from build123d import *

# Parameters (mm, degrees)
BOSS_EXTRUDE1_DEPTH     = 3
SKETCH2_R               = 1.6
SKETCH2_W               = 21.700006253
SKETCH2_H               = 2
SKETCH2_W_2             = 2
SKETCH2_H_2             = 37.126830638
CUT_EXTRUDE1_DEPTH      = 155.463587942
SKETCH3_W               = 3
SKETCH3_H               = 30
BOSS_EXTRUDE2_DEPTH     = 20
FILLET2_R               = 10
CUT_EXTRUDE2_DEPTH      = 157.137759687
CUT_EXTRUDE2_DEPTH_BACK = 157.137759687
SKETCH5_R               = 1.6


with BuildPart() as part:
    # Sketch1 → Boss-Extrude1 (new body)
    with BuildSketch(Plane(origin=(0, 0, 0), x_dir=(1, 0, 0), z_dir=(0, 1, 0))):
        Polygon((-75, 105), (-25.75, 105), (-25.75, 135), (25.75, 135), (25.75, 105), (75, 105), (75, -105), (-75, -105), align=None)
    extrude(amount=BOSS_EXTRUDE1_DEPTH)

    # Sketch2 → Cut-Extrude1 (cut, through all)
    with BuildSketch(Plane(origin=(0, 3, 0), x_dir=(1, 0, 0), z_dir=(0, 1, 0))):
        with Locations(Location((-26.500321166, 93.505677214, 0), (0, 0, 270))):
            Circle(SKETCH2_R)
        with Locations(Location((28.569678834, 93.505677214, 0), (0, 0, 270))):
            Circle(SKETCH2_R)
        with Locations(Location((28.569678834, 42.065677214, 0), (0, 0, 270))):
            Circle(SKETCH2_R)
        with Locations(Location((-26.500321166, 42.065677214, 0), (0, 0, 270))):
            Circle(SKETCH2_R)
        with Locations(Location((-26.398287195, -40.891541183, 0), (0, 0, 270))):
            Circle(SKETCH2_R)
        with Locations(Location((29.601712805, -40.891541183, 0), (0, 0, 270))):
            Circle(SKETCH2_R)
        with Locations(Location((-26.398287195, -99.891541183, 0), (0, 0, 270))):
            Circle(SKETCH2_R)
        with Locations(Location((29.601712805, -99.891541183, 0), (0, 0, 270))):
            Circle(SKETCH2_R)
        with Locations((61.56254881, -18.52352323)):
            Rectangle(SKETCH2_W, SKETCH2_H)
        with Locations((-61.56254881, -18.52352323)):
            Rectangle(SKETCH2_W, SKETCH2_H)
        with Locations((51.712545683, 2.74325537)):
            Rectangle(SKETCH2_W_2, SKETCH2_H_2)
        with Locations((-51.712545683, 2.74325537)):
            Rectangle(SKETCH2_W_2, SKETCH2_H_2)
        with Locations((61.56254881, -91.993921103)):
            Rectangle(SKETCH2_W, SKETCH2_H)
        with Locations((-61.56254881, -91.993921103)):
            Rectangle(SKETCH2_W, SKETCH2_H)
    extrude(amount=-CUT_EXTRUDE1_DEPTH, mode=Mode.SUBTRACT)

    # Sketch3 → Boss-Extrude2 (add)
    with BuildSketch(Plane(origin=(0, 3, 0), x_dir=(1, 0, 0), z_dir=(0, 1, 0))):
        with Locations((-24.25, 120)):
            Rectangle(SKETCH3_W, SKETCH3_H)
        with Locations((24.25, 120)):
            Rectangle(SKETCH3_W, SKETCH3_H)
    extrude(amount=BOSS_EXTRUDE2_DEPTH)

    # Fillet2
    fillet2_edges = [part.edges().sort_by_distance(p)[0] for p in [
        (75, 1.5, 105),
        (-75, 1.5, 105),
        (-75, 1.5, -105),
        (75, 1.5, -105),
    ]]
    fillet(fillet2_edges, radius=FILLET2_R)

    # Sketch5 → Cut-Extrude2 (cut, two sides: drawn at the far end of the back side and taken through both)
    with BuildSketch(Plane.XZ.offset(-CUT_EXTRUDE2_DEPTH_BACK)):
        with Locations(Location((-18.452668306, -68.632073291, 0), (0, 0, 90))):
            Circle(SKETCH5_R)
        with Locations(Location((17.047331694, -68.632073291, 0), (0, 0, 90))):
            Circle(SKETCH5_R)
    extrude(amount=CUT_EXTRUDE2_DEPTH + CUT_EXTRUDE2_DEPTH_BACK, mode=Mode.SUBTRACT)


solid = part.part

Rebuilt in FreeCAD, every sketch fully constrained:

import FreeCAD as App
import Part
import Sketcher


def edges_at(feature, points):
    """Names of the edges that pass closest to the given points."""
    edges = feature.Shape.Edges
    near = lambda p: min(range(len(edges)), key=lambda i: edges[i].distToShape(Part.Vertex(*p))[0])
    return sorted({f"Edge{near(p) + 1}" for p in points})


def add_polygon(sketch, points):
    """Adds a closed chain of lines whose ends are joined by coincident constraints."""
    first, n = sketch.GeometryCount, len(points)
    for a, b in zip(points, points[1:] + points[:1]):
        sketch.addGeometry(Part.LineSegment(App.Vector(*a, 0), App.Vector(*b, 0)), False)
    for i in range(n):
        sketch.addConstraint(Sketcher.Constraint("Coincident", first + i, 2, first + (i + 1) % n, 1))

doc = App.newDocument("Part")
body = doc.addObject("PartDesign::Body", "Body")

sketch1 = body.newObject("Sketcher::SketchObject", "Sketch")
sketch1.AttachmentSupport = (doc.getObject("XZ_Plane"), [""])
sketch1.MapMode = "FlatFace"
add_polygon(sketch1, [(-25.75, -105), (-75, -105), (-75, 105), (75, 105), (75, -105), (25.75, -105), (25.75, -135), (-25.75, -135)])
sketch1.addConstraint(Sketcher.Constraint("Horizontal", 0))
sketch1.addConstraint(Sketcher.Constraint("Vertical", 1))
sketch1.addConstraint(Sketcher.Constraint("Horizontal", 2))
sketch1.addConstraint(Sketcher.Constraint("Vertical", 3))
sketch1.addConstraint(Sketcher.Constraint("Horizontal", 4))
sketch1.addConstraint(Sketcher.Constraint("Vertical", 5))
sketch1.addConstraint(Sketcher.Constraint("Horizontal", 6))
sketch1.addConstraint(Sketcher.Constraint("Vertical", 7))
sketch1.addConstraint(Sketcher.Constraint("Symmetric", 0, 2, 2, 2, -1, 1))
sketch1.addConstraint(Sketcher.Constraint("Symmetric", 4, 2, 7, 2, -2))
sketch1.addConstraint(Sketcher.Constraint("DistanceX", 2, 1, 2, 2, 150.0))
sketch1.addConstraint(Sketcher.Constraint("DistanceY", 1, 1, 1, 2, 210.0))
sketch1.addConstraint(Sketcher.Constraint("DistanceY", 5, 2, 5, 1, 30.0))
sketch1.addConstraint(Sketcher.Constraint("DistanceX", 6, 2, 6, 1, 51.5))
pad1 = body.newObject("PartDesign::Pad", "Pad")
pad1.Profile = sketch1
pad1.Length = 3
pad1.Reversed = True

sketch2 = body.newObject("Sketcher::SketchObject", "Sketch001")
sketch2.AttachmentSupport = (doc.getObject("XZ_Plane"), [""])
sketch2.MapMode = "FlatFace"
sketch2.AttachmentOffset = App.Placement(App.Vector(0, 0, -3), App.Rotation())
sketch2.addGeometry(Part.Circle(App.Vector(-26.500321, -93.505677, 0), App.Vector(0, 0, 1), 1.6), False)
sketch2.addGeometry(Part.Circle(App.Vector(28.569679, -93.505677, 0), App.Vector(0, 0, 1), 1.6), False)
sketch2.addGeometry(Part.Circle(App.Vector(28.569679, -42.065677, 0), App.Vector(0, 0, 1), 1.6), False)
sketch2.addGeometry(Part.Circle(App.Vector(-26.500321, -42.065677, 0), App.Vector(0, 0, 1), 1.6), False)
sketch2.addGeometry(Part.Circle(App.Vector(-26.398287, 40.891541, 0), App.Vector(0, 0, 1), 1.6), False)
sketch2.addGeometry(Part.Circle(App.Vector(29.601713, 40.891541, 0), App.Vector(0, 0, 1), 1.6), False)
sketch2.addGeometry(Part.Circle(App.Vector(-26.398287, 99.891541, 0), App.Vector(0, 0, 1), 1.6), False)
sketch2.addGeometry(Part.Circle(App.Vector(29.601713, 99.891541, 0), App.Vector(0, 0, 1), 1.6), False)
add_polygon(sketch2, [(50.712546, 17.523523), (50.712546, 19.523523), (72.412552, 19.523523), (72.412552, 17.523523)])
add_polygon(sketch2, [(-72.412552, 17.523523), (-72.412552, 19.523523), (-50.712546, 19.523523), (-50.712546, 17.523523)])
add_polygon(sketch2, [(50.712546, -21.306671), (50.712546, 15.82016), (52.712546, 15.82016), (52.712546, -21.306671)])
add_polygon(sketch2, [(-52.712546, -21.306671), (-52.712546, 15.82016), (-50.712546, 15.82016), (-50.712546, -21.306671)])
add_polygon(sketch2, [(50.712546, 90.993921), (50.712546, 92.993921), (72.412552, 92.993921), (72.412552, 90.993921)])
add_polygon(sketch2, [(-72.412552, 90.993921), (-72.412552, 92.993921), (-50.712546, 92.993921), (-50.712546, 90.993921)])
sketch2.addConstraint(Sketcher.Constraint("Vertical", 8))
sketch2.addConstraint(Sketcher.Constraint("Horizontal", 9))
sketch2.addConstraint(Sketcher.Constraint("Vertical", 10))
sketch2.addConstraint(Sketcher.Constraint("Horizontal", 11))
sketch2.addConstraint(Sketcher.Constraint("Vertical", 12))
sketch2.addConstraint(Sketcher.Constraint("Horizontal", 13))
sketch2.addConstraint(Sketcher.Constraint("Vertical", 14))
sketch2.addConstraint(Sketcher.Constraint("Horizontal", 15))
sketch2.addConstraint(Sketcher.Constraint("Vertical", 16))
sketch2.addConstraint(Sketcher.Constraint("Horizontal", 17))
sketch2.addConstraint(Sketcher.Constraint("Vertical", 18))
sketch2.addConstraint(Sketcher.Constraint("Horizontal", 19))
sketch2.addConstraint(Sketcher.Constraint("Vertical", 20))
sketch2.addConstraint(Sketcher.Constraint("Horizontal", 21))
sketch2.addConstraint(Sketcher.Constraint("Vertical", 22))
sketch2.addConstraint(Sketcher.Constraint("Horizontal", 23))
sketch2.addConstraint(Sketcher.Constraint("Vertical", 24))
sketch2.addConstraint(Sketcher.Constraint("Horizontal", 25))
sketch2.addConstraint(Sketcher.Constraint("Vertical", 26))
sketch2.addConstraint(Sketcher.Constraint("Horizontal", 27))
sketch2.addConstraint(Sketcher.Constraint("Vertical", 28))
sketch2.addConstraint(Sketcher.Constraint("Horizontal", 29))
sketch2.addConstraint(Sketcher.Constraint("Vertical", 30))
sketch2.addConstraint(Sketcher.Constraint("Horizontal", 31))
sketch2.addConstraint(Sketcher.Constraint("Equal", 0, 1))
sketch2.addConstraint(Sketcher.Constraint("Equal", 1, 2))
sketch2.addConstraint(Sketcher.Constraint("Equal", 2, 3))
sketch2.addConstraint(Sketcher.Constraint("Equal", 3, 4))
sketch2.addConstraint(Sketcher.Constraint("Equal", 4, 5))
sketch2.addConstraint(Sketcher.Constraint("Equal", 5, 6))
sketch2.addConstraint(Sketcher.Constraint("Equal", 6, 7))
sketch2.addConstraint(Sketcher.Constraint("Symmetric", 9, 2, 12, 2, -2))
sketch2.addConstraint(Sketcher.Constraint("Symmetric", 11, 2, 14, 2, -2))
sketch2.addConstraint(Sketcher.Constraint("Symmetric", 17, 2, 20, 2, -2))
sketch2.addConstraint(Sketcher.Constraint("Symmetric", 19, 2, 22, 2, -2))
sketch2.addConstraint(Sketcher.Constraint("Symmetric", 25, 2, 28, 2, -2))
sketch2.addConstraint(Sketcher.Constraint("Symmetric", 27, 2, 30, 2, -2))
sketch2.addConstraint(Sketcher.Constraint("Horizontal", 0, 3, 1, 3))
sketch2.addConstraint(Sketcher.Constraint("Horizontal", 2, 3, 3, 3))
sketch2.addConstraint(Sketcher.Constraint("Horizontal", 4, 3, 5, 3))
sketch2.addConstraint(Sketcher.Constraint("Horizontal", 6, 3, 7, 3))
sketch2.addConstraint(Sketcher.Constraint("Vertical", 1, 3, 2, 3))
sketch2.addConstraint(Sketcher.Constraint("Vertical", 0, 3, 3, 3))
sketch2.addConstraint(Sketcher.Constraint("Vertical", 4, 3, 6, 3))
sketch2.addConstraint(Sketcher.Constraint("Vertical", 5, 3, 7, 3))
sketch2.addConstraint(Sketcher.Constraint("Vertical", 11, 2, 16, 2))
sketch2.addConstraint(Sketcher.Constraint("Vertical", 19, 2, 24, 2))
sketch2.addConstraint(Sketcher.Constraint("Vertical", 10, 2, 25, 2))
sketch2.addConstraint(Sketcher.Constraint("Equal", 23, 8))
sketch2.addConstraint(Sketcher.Constraint("Equal", 14, 24))
sketch2.addConstraint(Sketcher.Constraint("Diameter", 0, 3.2))
sketch2.addConstraint(Sketcher.Constraint("DistanceX", 17, 1, 17, 2, 2.0))
sketch2.addConstraint(Sketcher.Constraint("DistanceX", 4, 3, 5, 3, 56.0))
sketch2.addConstraint(Sketcher.Constraint("DistanceY", 4, 3, 6, 3, 59.0))
sketch2.addConstraint(Sketcher.Constraint("DistanceX", 0, 3, 1, 3, 55.07))
sketch2.addConstraint(Sketcher.Constraint("DistanceY", 1, 3, 2, 3, 51.44))
sketch2.addConstraint(Sketcher.Constraint("DistanceY", 16, 1, 16, 2, 37.126831))
sketch2.addConstraint(Sketcher.Constraint("DistanceY", 2, 3, 8, 2, 61.5892))
sketch2.addConstraint(Sketcher.Constraint("DistanceX", 9, 1, 9, 2, 21.700006))
sketch2.addConstraint(Sketcher.Constraint("DistanceX", 0, 3, -1, 1, 26.500321))
sketch2.addConstraint(Sketcher.Constraint("DistanceY", -1, 1, 4, 3, 40.891541))
sketch2.addConstraint(Sketcher.Constraint("DistanceX", -1, 1, 9, 2, 72.412552))
sketch2.addConstraint(Sketcher.Constraint("DistanceY", -1, 1, 16, 2, 15.82016))
sketch2.addConstraint(Sketcher.Constraint("DistanceY", -1, 1, 24, 2, 92.993921))
sketch2.addConstraint(Sketcher.Constraint("DistanceY", 3, 3, 4, 3, 82.957218))
sketch2.addConstraint(Sketcher.Constraint("DistanceX", 5, 3, 9, 2, 42.810839))
pocket1 = body.newObject("PartDesign::Pocket", "Pocket")
pocket1.Profile = sketch2
pocket1.Type = "ThroughAll"
pocket1.Reversed = True

sketch3 = body.newObject("Sketcher::SketchObject", "Sketch002")
sketch3.AttachmentSupport = (doc.getObject("XZ_Plane"), [""])
sketch3.MapMode = "FlatFace"
sketch3.AttachmentOffset = App.Placement(App.Vector(0, 0, -3), App.Rotation())
add_polygon(sketch3, [(-25.75, -135), (-25.75, -105), (-22.75, -105), (-22.75, -135)])
add_polygon(sketch3, [(22.75, -135), (22.75, -105), (25.75, -105), (25.75, -135)])
sketch3.addConstraint(Sketcher.Constraint("Vertical", 0))
sketch3.addConstraint(Sketcher.Constraint("Horizontal", 1))
sketch3.addConstraint(Sketcher.Constraint("Vertical", 2))
sketch3.addConstraint(Sketcher.Constraint("Horizontal", 3))
sketch3.addConstraint(Sketcher.Constraint("Vertical", 4))
sketch3.addConstraint(Sketcher.Constraint("Horizontal", 5))
sketch3.addConstraint(Sketcher.Constraint("Vertical", 6))
sketch3.addConstraint(Sketcher.Constraint("Horizontal", 7))
sketch3.addConstraint(Sketcher.Constraint("Symmetric", 1, 2, 4, 2, -2))
sketch3.addConstraint(Sketcher.Constraint("Symmetric", 3, 2, 6, 2, -2))
sketch3.addConstraint(Sketcher.Constraint("DistanceX", 1, 1, 1, 2, 3.0))
sketch3.addConstraint(Sketcher.Constraint("DistanceY", 0, 1, 0, 2, 30.0))
sketch3.addConstraint(Sketcher.Constraint("DistanceY", 0, 2, -1, 1, 105.0))
sketch3.addConstraint(Sketcher.Constraint("DistanceX", 1, 2, 4, 2, 45.5))
pad2 = body.newObject("PartDesign::Pad", "Pad001")
pad2.Profile = sketch3
pad2.Length = 20
pad2.Reversed = True
doc.recompute()

fillet = body.newObject("PartDesign::Fillet", "Fillet")
fillet.Base = (pad2, edges_at(pad2, [
    (75, 1.5, 105),
    (-75, 1.5, 105),
    (-75, 1.5, -105),
    (75, 1.5, -105),
]))
fillet.Radius = 10

sketch4 = body.newObject("Sketcher::SketchObject", "Sketch003")
sketch4.AttachmentSupport = (doc.getObject("XZ_Plane"), [""])
sketch4.MapMode = "FlatFace"
sketch4.addGeometry(Part.Circle(App.Vector(-18.452668, -68.632073, 0), App.Vector(0, 0, 1), 1.6), False)
sketch4.addGeometry(Part.Circle(App.Vector(17.047332, -68.632073, 0), App.Vector(0, 0, 1), 1.6), False)
sketch4.addConstraint(Sketcher.Constraint("Equal", 0, 1))
sketch4.addConstraint(Sketcher.Constraint("Horizontal", 0, 3, 1, 3))
sketch4.addConstraint(Sketcher.Constraint("Diameter", 0, 3.2))
sketch4.addConstraint(Sketcher.Constraint("DistanceX", 0, 3, 1, 3, 35.5))
sketch4.addConstraint(Sketcher.Constraint("DistanceX", 0, 3, -1, 1, 18.452668))
sketch4.addConstraint(Sketcher.Constraint("DistanceY", 0, 3, -1, 1, 68.632073))
pocket2 = body.newObject("PartDesign::Pocket", "Pocket001")
pocket2.Profile = sketch4
pocket2.Type = "ThroughAll"
pocket2.Midplane = True

doc.recompute()
